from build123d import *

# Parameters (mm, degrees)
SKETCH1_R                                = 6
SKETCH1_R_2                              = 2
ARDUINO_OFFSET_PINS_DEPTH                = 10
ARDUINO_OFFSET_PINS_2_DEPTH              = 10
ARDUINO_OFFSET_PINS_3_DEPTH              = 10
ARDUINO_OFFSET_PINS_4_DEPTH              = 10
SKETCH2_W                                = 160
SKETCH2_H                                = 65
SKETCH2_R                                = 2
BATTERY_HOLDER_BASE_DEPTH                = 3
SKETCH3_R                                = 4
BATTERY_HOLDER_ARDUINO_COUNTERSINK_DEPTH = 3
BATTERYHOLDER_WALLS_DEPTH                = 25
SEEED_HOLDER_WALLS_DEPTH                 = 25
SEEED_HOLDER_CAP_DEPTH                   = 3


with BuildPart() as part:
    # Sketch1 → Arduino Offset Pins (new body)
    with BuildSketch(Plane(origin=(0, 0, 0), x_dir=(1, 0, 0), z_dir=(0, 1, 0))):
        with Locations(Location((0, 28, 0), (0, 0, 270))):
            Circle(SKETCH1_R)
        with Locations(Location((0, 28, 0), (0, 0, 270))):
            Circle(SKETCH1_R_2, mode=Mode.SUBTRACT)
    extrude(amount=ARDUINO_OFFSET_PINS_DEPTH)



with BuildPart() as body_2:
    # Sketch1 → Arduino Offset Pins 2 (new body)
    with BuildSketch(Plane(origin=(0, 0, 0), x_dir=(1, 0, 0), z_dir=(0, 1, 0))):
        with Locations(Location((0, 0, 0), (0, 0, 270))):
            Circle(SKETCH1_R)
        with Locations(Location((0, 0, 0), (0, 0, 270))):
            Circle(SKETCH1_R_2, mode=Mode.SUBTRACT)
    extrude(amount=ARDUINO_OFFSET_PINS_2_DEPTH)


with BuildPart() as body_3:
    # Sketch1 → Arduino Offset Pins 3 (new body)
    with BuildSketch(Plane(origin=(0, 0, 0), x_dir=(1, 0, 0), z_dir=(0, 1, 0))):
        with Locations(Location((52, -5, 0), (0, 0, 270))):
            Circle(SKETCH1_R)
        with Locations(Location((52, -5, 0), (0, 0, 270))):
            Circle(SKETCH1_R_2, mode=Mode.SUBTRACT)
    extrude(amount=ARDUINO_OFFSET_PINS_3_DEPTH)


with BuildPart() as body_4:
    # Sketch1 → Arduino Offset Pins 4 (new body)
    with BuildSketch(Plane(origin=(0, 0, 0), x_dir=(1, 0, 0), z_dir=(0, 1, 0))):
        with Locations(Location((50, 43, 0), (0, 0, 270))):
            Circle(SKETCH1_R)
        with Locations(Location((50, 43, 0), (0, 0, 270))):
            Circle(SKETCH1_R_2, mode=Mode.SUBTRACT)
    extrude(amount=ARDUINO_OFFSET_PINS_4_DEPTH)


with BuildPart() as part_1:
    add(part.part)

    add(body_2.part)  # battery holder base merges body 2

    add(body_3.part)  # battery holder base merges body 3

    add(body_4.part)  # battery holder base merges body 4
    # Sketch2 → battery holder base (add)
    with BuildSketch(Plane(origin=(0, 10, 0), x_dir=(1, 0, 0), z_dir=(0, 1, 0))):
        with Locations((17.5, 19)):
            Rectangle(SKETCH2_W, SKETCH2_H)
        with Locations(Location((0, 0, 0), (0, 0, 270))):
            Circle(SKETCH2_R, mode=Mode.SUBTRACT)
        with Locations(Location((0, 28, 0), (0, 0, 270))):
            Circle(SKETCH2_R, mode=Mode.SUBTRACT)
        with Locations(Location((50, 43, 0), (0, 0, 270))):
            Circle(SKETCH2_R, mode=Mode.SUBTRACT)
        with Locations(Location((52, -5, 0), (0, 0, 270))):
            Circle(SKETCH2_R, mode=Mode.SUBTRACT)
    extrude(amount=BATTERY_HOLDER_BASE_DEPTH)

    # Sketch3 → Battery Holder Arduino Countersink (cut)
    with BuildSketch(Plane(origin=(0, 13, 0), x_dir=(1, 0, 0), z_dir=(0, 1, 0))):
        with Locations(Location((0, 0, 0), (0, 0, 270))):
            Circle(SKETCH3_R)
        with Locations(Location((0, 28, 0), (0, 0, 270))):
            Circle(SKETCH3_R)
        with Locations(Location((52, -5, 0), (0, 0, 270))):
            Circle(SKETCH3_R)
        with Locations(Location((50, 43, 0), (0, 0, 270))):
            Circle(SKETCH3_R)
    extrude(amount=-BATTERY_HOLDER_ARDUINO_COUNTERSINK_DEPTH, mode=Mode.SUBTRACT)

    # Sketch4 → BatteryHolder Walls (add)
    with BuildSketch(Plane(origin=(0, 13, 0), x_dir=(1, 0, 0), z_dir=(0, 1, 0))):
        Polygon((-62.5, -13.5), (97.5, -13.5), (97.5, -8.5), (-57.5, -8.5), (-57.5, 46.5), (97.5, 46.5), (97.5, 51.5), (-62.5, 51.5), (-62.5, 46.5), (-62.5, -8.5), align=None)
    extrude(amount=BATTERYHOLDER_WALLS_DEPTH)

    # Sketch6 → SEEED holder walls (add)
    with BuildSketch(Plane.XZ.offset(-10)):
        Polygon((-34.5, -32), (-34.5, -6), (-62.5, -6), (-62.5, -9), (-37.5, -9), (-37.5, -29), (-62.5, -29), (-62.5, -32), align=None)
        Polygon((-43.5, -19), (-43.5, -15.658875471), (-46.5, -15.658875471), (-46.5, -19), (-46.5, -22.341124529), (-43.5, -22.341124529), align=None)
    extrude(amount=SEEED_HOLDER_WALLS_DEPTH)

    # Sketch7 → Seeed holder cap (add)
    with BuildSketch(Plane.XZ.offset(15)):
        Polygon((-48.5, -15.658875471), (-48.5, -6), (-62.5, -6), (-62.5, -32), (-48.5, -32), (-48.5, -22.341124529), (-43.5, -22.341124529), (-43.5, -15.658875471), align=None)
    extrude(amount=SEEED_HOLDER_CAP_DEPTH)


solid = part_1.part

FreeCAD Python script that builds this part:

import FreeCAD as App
import Part
import Sketcher


def add_polygon(sketch, points):
    """Adds a closed chain of lines whose ends are joined by coincident constraints."""
    first, n = sketch.GeometryCount, len(points)
    for a, b in zip(points, points[1:] + points[:1]):
        sketch.addGeometry(Part.LineSegment(App.Vector(*a, 0), App.Vector(*b, 0)), False)
    for i in range(n):
        sketch.addConstraint(Sketcher.Constraint("Coincident", first + i, 2, first + (i + 1) % n, 1))

doc = App.newDocument("Part")
body = doc.addObject("PartDesign::Body", "Body")

# Sketch on XZ plane
sketch1 = body.newObject("Sketcher::SketchObject", "Sketch")
sketch1.AttachmentSupport = (doc.getObject("XZ_Plane"), [""])
sketch1.MapMode = "FlatFace"
sketch1.addGeometry([
    Part.Circle(App.Vector(0, -28, 0), App.Vector(0, 0, 1), 6),
    Part.Circle(App.Vector(0, -28, 0), App.Vector(0, 0, 1), 2),
], False)
sketch1.addConstraint([
    Sketcher.Constraint("Coincident", 1, 3, 0, 3),
    Sketcher.Constraint("PointOnObject", 0, 3, -2),
    Sketcher.Constraint("Diameter", 0, 12.0),
    Sketcher.Constraint("Diameter", 1, 4.0),
    Sketcher.Constraint("DistanceY", 0, 3, -1, 1, 28.0),
])
pad1 = body.newObject("PartDesign::Pad", "Pad")
pad1.Profile = sketch1
pad1.Length = 10
pad1.Reversed = True
body2 = doc.addObject("PartDesign::Body", "Body001")

# Sketch on XZ plane
sketch2 = body2.newObject("Sketcher::SketchObject", "Sketch001")
sketch2.AttachmentSupport = (doc.getObject("XZ_Plane001"), [""])
sketch2.MapMode = "FlatFace"
sketch2.addGeometry([
    Part.Circle(App.Vector(0, 0, 0), App.Vector(0, 0, 1), 6),
    Part.Circle(App.Vector(0, 0, 0), App.Vector(0, 0, 1), 2),
], False)
sketch2.addConstraint([
    Sketcher.Constraint("Coincident", 0, 3, -1, 1),
    Sketcher.Constraint("Coincident", 1, 3, -1, 1),
    Sketcher.Constraint("Diameter", 0, 12.0),
    Sketcher.Constraint("Diameter", 1, 4.0),
])
pad2 = body2.newObject("PartDesign::Pad", "Pad001")
pad2.Profile = sketch2
pad2.Length = 10
pad2.Reversed = True
body3 = doc.addObject("PartDesign::Body", "Body002")

# Sketch on XZ plane
sketch3 = body3.newObject("Sketcher::SketchObject", "Sketch002")
sketch3.AttachmentSupport = (doc.getObject("XZ_Plane002"), [""])
sketch3.MapMode = "FlatFace"
sketch3.addGeometry([
    Part.Circle(App.Vector(52, 5, 0), App.Vector(0, 0, 1), 6),
    Part.Circle(App.Vector(52, 5, 0), App.Vector(0, 0, 1), 2),
], False)
sketch3.addConstraint([
    Sketcher.Constraint("Coincident", 1, 3, 0, 3),
    Sketcher.Constraint("Diameter", 0, 12.0),
    Sketcher.Constraint("Diameter", 1, 4.0),
    Sketcher.Constraint("DistanceX", -1, 1, 0, 3, 52.0),
    Sketcher.Constraint("DistanceY", -1, 1, 0, 3, 5.0),
])
pad3 = body3.newObject("PartDesign::Pad", "Pad002")
pad3.Profile = sketch3
pad3.Length = 10
pad3.Reversed = True
body4 = doc.addObject("PartDesign::Body", "Body003")

# Sketch on XZ plane
sketch4 = body4.newObject("Sketcher::SketchObject", "Sketch003")
sketch4.AttachmentSupport = (doc.getObject("XZ_Plane003"), [""])
sketch4.MapMode = "FlatFace"
sketch4.addGeometry([
    Part.Circle(App.Vector(50, -43, 0), App.Vector(0, 0, 1), 6),
    Part.Circle(App.Vector(50, -43, 0), App.Vector(0, 0, 1), 2),
], False)
sketch4.addConstraint([
    Sketcher.Constraint("Coincident", 1, 3, 0, 3),
    Sketcher.Constraint("Diameter", 0, 12.0),
    Sketcher.Constraint("Diameter", 1, 4.0),
    Sketcher.Constraint("DistanceX", -1, 1, 0, 3, 50.0),
    Sketcher.Constraint("DistanceY", 0, 3, -1, 1, 43.0),
])
pad4 = body4.newObject("PartDesign::Pad", "Pad003")
pad4.Profile = sketch4
pad4.Length = 10
pad4.Reversed = True
body.AllowCompound = True
doc.recompute()

boolean = body.newObject("PartDesign::Boolean", "Boolean")
boolean.Type = "Fuse"
boolean.addObjects([body2])
doc.recompute()

boolean2 = body.newObject("PartDesign::Boolean", "Boolean001")
boolean2.Type = "Fuse"
boolean2.addObjects([body3])
doc.recompute()

boolean3 = body.newObject("PartDesign::Boolean", "Boolean002")
boolean3.Type = "Fuse"
boolean3.addObjects([body4])

# Sketch on XZ plane
sketch5 = body.newObject("Sketcher::SketchObject", "Sketch004")
sketch5.AttachmentSupport = (doc.getObject("XZ_Plane"), [""])
sketch5.MapMode = "FlatFace"
sketch5.AttachmentOffset = App.Placement(App.Vector(0, 0, -10), App.Rotation())
add_polygon(sketch5, [(-62.5, -51.5), (-62.5, 13.5), (97.5, 13.5), (97.5, -51.5)])  # lines 0-3
sketch5.addGeometry(Part.Circle(App.Vector(0, 0, 0), App.Vector(0, 0, 1), 2), False)  # 4
sketch5.addGeometry(Part.Circle(App.Vector(52, 5, 0), App.Vector(0, 0, 1), 2), False)  # 5
sketch5.addGeometry(Part.Circle(App.Vector(0, -28, 0), App.Vector(0, 0, 1), 2), False)  # 6
sketch5.addGeometry(Part.Circle(App.Vector(50, -43, 0), App.Vector(0, 0, 1), 2), False)  # 7
sketch5.addConstraint([
    Sketcher.Constraint("Vertical", 0),
    Sketcher.Constraint("Horizontal", 1),
    Sketcher.Constraint("Vertical", 2),
    Sketcher.Constraint("Horizontal", 3),
    Sketcher.Constraint("Coincident", 4, 3, -1, 1),
    Sketcher.Constraint("Equal", 4, 5),
    Sketcher.Constraint("Equal", 5, 6),
    Sketcher.Constraint("Equal", 6, 7),
    Sketcher.Constraint("PointOnObject", 6, 3, -2),
    Sketcher.Constraint("Diameter", 4, 4.0),
    Sketcher.Constraint("DistanceX", 1, 1, 1, 2, 160.0),
    Sketcher.Constraint("DistanceY", 0, 1, 0, 2, 65.0),
    Sketcher.Constraint("DistanceX", -1, 1, 5, 3, 52.0),
    Sketcher.Constraint("DistanceY", -1, 1, 5, 3, 5.0),
    Sketcher.Constraint("DistanceY", 6, 3, -1, 1, 28.0),
    Sketcher.Constraint("DistanceX", -1, 1, 7, 3, 50.0),
    Sketcher.Constraint("DistanceY", 7, 3, -1, 1, 43.0),
    Sketcher.Constraint("DistanceX", 0, 2, -1, 1, 62.5),
    Sketcher.Constraint("DistanceY", -1, 1, 0, 2, 13.5),
])
pad5 = body.newObject("PartDesign::Pad", "Pad004")
pad5.Profile = sketch5
pad5.Length = 3
pad5.Reversed = True

# Sketch on XZ plane
sketch6 = body.newObject("Sketcher::SketchObject", "Sketch005")
sketch6.AttachmentSupport = (doc.getObject("XZ_Plane"), [""])
sketch6.MapMode = "FlatFace"
sketch6.AttachmentOffset = App.Placement(App.Vector(0, 0, -13), App.Rotation())
sketch6.addGeometry([
    Part.Circle(App.Vector(0, 0, 0), App.Vector(0, 0, 1), 4),
    Part.Circle(App.Vector(0, -28, 0), App.Vector(0, 0, 1), 4),
    Part.Circle(App.Vector(52, 5, 0), App.Vector(0, 0, 1), 4),
    Part.Circle(App.Vector(50, -43, 0), App.Vector(0, 0, 1), 4),
], False)
sketch6.addConstraint([
    Sketcher.Constraint("Coincident", 0, 3, -1, 1),
    Sketcher.Constraint("Equal", 0, 1),
    Sketcher.Constraint("Equal", 1, 2),
    Sketcher.Constraint("Equal", 2, 3),
    Sketcher.Constraint("PointOnObject", 1, 3, -2),
    Sketcher.Constraint("Diameter", 0, 8.0),
    Sketcher.Constraint("DistanceY", 1, 3, -1, 1, 28.0),
    Sketcher.Constraint("DistanceX", -1, 1, 2, 3, 52.0),
    Sketcher.Constraint("DistanceY", -1, 1, 2, 3, 5.0),
    Sketcher.Constraint("DistanceX", -1, 1, 3, 3, 50.0),
    Sketcher.Constraint("DistanceY", 3, 3, -1, 1, 43.0),
])
pocket1 = body.newObject("PartDesign::Pocket", "Pocket")
pocket1.Profile = sketch6
pocket1.Length = 3
pocket1.Reversed = True

# Sketch on XZ plane
sketch7 = body.newObject("Sketcher::SketchObject", "Sketch006")
sketch7.AttachmentSupport = (doc.getObject("XZ_Plane"), [""])
sketch7.MapMode = "FlatFace"
sketch7.AttachmentOffset = App.Placement(App.Vector(0, 0, -13), App.Rotation())
add_polygon(sketch7, [(-62, 14), (98, 14), (98, 8), (-58, 8), (-58, -46), (98, -46), (98, -52), (-62, -52)])  # lines 0-7
sketch7.addConstraint([
    Sketcher.Constraint("Horizontal", 0),
    Sketcher.Constraint("Vertical", 1),
    Sketcher.Constraint("Horizontal", 2),
    Sketcher.Constraint("Vertical", 3),
    Sketcher.Constraint("Horizontal", 4),
    Sketcher.Constraint("Vertical", 5),
    Sketcher.Constraint("Horizontal", 6),
    Sketcher.Constraint("Vertical", 7),
    Sketcher.Constraint("Vertical", 1, 2, 4, 2),
    Sketcher.Constraint("Equal", 1, 5),
    Sketcher.Constraint("DistanceX", 0, 1, 0, 2, 160.0),
    Sketcher.Constraint("DistanceX", 2, 2, 2, 1, 155.0),
    Sketcher.Constraint("DistanceY", 1, 2, 1, 1, 5.0),
    Sketcher.Constraint("DistanceY", 3, 2, 3, 1, 55.0),
    Sketcher.Constraint("DistanceX", -1, 1, 0, 2, 97.5),
    Sketcher.Constraint("DistanceY", -1, 1, 0, 2, 13.5),
])
pad6 = body.newObject("PartDesign::Pad", "Pad005")
pad6.Profile = sketch7
pad6.Length = 25
pad6.Reversed = True

# Sketch on XZ plane
sketch8 = body.newObject("Sketcher::SketchObject", "Sketch007")
sketch8.AttachmentSupport = (doc.getObject("XZ_Plane"), [""])
sketch8.MapMode = "FlatFace"
sketch8.AttachmentOffset = App.Placement(App.Vector(0, 0, -10), App.Rotation())
add_polygon(sketch8, [(-34.5, -32), (-34.5, -6), (-62.5, -6), (-62.5, -9), (-37.5, -9), (-37.5, -29), (-62.5, -29), (-62.5, -32)])  # lines 0-7
add_polygon(sketch8, [(-43.5, -15.7), (-46.5, -15.7), (-46.5, -22.3), (-43.5, -22.3)])  # lines 8-11
sketch8.addConstraint([
    Sketcher.Constraint("Vertical", 0),
    Sketcher.Constraint("Horizontal", 1),
    Sketcher.Constraint("Vertical", 2),
    Sketcher.Constraint("Horizontal", 3),
    Sketcher.Constraint("Vertical", 4),
    Sketcher.Constraint("Horizontal", 5),
    Sketcher.Constraint("Vertical", 6),
    Sketcher.Constraint("Horizontal", 7),
    Sketcher.Constraint("Horizontal", 8),
    Sketcher.Constraint("Vertical", 9),
    Sketcher.Constraint("Horizontal", 10),
    Sketcher.Constraint("Vertical", 11),
    Sketcher.Constraint("Vertical", 2, 2, 5, 2),
    Sketcher.Constraint("Equal", 10, 2),
    Sketcher.Constraint("Equal", 2, 6),
    Sketcher.Constraint("DistanceX", 1, 2, 1, 1, 28.0),
    Sketcher.Constraint("DistanceX", 3, 1, 3, 2, 25.0),
    Sketcher.Constraint("DistanceX", 8, 2, 8, 1, 3.0),
    Sketcher.Constraint("DistanceY", 0, 1, 0, 2, 26.0),
    Sketcher.Constraint("DistanceY", 0, 2, -1, 1, 6.0),
    Sketcher.Constraint("DistanceX", 8, 2, 3, 2, 9.0),
    Sketcher.Constraint("DistanceX", 0, 2, -1, 1, 34.5),
    Sketcher.Constraint("DistanceY", 9, 2, 9, 1, 6.682249),
    Sketcher.Constraint("DistanceY", 8, 2, -1, 1, 15.658875),
])
pad7 = body.newObject("PartDesign::Pad", "Pad006")
pad7.Profile = sketch8
pad7.Length = 25

# Sketch on XZ plane
sketch9 = body.newObject("Sketcher::SketchObject", "Sketch008")
sketch9.AttachmentSupport = (doc.getObject("XZ_Plane"), [""])
sketch9.MapMode = "FlatFace"
sketch9.AttachmentOffset = App.Placement(App.Vector(0, 0, 15), App.Rotation())
add_polygon(sketch9, [(-48, -16), (-48, -6), (-62, -6), (-62, -32), (-48, -32), (-48, -22), (-44, -22), (-44, -16)])  # lines 0-7
sketch9.addConstraint([
    Sketcher.Constraint("Vertical", 0),
    Sketcher.Constraint("Horizontal", 1),
    Sketcher.Constraint("Vertical", 2),
    Sketcher.Constraint("Horizontal", 3),
    Sketcher.Constraint("Vertical", 4),
    Sketcher.Constraint("Horizontal", 5),
    Sketcher.Constraint("Vertical", 6),
    Sketcher.Constraint("Horizontal", 7),
    Sketcher.Constraint("Vertical", 0, 2, 3, 2),
    Sketcher.Constraint("Equal", 0, 4),
    Sketcher.Constraint("DistanceX", 1, 2, 1, 1, 14.0),
    Sketcher.Constraint("DistanceX", 5, 1, 5, 2, 5.0),
    Sketcher.Constraint("DistanceY", 2, 2, 2, 1, 26.0),
    Sketcher.Constraint("DistanceY", 0, 2, -1, 1, 6.0),
    Sketcher.Constraint("DistanceX", 0, 2, -1, 1, 48.5),
    Sketcher.Constraint("DistanceY", 6, 1, 6, 2, 6.682249),
])
pad8 = body.newObject("PartDesign::Pad", "Pad007")
pad8.Profile = sketch9
pad8.Length = 3

doc.recompute()
